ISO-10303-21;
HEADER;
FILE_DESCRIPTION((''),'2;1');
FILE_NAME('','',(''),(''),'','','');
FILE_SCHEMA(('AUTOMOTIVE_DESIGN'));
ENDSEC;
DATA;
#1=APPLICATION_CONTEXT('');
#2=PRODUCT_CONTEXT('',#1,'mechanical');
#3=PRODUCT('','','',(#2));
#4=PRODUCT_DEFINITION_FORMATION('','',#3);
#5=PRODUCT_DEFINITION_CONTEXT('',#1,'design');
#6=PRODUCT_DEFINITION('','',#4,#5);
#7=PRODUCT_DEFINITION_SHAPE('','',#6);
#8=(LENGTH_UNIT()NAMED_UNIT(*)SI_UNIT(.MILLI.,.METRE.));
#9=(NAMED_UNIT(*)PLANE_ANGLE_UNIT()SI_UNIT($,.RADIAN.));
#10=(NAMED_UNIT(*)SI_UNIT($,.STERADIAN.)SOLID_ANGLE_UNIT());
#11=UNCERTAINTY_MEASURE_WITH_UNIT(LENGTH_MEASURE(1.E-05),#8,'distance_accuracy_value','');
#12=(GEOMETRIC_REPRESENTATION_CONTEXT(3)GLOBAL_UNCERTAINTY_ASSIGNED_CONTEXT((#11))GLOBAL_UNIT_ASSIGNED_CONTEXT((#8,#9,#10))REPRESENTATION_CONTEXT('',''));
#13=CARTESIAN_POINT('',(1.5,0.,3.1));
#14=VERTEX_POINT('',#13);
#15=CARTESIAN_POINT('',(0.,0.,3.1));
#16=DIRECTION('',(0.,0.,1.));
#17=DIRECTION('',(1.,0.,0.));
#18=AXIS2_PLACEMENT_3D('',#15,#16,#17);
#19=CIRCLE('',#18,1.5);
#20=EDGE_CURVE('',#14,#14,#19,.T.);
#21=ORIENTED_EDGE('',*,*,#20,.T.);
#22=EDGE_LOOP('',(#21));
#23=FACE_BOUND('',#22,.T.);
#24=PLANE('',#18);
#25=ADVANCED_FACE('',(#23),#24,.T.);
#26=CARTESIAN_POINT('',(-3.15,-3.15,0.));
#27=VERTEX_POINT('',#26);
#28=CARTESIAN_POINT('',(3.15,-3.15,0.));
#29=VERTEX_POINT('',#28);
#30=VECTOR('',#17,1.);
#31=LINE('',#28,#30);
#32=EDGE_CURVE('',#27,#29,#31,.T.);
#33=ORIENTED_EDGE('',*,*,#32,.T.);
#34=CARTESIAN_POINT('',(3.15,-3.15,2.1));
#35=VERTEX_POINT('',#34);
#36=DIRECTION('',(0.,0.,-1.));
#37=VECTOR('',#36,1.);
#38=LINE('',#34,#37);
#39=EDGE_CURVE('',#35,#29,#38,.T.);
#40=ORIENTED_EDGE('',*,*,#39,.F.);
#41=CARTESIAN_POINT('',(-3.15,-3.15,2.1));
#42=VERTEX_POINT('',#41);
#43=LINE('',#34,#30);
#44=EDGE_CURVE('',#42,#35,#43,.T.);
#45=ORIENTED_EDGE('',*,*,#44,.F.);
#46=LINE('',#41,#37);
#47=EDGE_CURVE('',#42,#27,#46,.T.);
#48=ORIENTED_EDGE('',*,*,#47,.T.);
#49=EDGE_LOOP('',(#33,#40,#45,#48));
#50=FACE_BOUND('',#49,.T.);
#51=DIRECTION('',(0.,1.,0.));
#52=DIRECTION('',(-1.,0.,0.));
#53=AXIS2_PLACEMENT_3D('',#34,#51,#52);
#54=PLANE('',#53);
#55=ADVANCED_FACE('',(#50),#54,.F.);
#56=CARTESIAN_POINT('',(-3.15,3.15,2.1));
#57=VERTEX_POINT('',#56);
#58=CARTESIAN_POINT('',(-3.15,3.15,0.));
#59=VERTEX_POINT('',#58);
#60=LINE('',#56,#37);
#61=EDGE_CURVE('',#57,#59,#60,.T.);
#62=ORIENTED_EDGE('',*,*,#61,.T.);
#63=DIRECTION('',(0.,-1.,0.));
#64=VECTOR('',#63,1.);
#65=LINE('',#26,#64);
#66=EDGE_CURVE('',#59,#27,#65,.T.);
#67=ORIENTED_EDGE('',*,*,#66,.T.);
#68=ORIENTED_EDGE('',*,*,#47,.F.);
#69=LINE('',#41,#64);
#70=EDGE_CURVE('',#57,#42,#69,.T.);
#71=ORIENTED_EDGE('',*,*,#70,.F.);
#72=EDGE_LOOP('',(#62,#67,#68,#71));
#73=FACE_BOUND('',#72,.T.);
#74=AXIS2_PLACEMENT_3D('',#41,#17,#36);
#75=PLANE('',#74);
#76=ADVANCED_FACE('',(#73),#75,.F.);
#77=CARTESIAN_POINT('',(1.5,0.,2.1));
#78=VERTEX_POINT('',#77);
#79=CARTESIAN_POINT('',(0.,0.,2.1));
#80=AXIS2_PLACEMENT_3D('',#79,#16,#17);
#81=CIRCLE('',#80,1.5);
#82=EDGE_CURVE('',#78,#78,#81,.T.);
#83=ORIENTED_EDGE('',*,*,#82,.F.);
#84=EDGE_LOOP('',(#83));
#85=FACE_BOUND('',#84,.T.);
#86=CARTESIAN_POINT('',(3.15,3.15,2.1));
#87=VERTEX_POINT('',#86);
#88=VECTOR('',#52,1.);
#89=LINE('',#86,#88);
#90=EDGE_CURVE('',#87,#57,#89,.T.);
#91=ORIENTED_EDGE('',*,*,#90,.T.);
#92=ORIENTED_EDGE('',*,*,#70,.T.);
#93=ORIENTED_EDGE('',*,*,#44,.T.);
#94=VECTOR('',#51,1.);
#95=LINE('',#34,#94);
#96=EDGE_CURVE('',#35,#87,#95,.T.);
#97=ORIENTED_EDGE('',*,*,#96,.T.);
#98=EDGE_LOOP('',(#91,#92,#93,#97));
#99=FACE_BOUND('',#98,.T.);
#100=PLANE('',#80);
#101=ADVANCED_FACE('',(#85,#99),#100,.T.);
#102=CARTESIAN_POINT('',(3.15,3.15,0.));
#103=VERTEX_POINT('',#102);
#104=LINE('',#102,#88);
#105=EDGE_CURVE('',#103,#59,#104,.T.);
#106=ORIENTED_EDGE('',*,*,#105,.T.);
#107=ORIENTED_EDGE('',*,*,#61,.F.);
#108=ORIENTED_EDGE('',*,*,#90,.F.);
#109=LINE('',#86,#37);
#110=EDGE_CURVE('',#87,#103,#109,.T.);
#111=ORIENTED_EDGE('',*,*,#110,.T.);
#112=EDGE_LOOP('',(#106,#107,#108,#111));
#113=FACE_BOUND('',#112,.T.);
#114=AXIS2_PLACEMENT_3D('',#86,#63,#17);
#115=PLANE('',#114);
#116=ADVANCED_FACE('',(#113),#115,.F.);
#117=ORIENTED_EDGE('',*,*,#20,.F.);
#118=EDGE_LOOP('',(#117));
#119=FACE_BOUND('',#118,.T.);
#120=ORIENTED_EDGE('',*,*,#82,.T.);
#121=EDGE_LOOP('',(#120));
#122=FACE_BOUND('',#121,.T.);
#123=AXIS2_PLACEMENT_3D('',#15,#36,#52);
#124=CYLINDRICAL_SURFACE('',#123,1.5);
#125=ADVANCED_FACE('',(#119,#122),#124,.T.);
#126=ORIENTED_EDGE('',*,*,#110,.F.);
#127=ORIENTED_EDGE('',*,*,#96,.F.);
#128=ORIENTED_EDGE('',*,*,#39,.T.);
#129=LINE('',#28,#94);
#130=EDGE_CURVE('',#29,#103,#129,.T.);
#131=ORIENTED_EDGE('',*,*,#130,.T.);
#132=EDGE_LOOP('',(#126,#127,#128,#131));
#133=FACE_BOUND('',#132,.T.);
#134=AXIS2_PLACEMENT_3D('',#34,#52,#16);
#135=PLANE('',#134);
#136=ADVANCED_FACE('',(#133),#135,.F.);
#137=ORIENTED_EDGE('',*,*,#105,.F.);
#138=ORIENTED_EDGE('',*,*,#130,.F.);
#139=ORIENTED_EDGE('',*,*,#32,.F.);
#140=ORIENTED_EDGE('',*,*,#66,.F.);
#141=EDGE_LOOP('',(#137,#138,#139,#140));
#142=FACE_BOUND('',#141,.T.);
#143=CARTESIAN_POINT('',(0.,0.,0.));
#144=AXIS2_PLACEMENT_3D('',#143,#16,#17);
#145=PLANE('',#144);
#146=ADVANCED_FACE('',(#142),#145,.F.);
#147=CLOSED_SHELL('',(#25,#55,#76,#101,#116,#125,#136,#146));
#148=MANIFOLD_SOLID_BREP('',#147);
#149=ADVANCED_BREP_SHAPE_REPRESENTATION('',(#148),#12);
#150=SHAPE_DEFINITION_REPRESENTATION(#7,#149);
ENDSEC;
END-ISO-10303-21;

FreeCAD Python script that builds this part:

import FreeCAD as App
import Part
import Sketcher
from FreeCAD import Vector
Q = App.Units.Quantity


def add_polygon(sketch, points):
    """Adds a closed chain of lines whose ends are joined by coincident constraints."""
    first, n = sketch.GeometryCount, len(points)
    for a, b in zip(points, points[1:] + points[:1]):
        sketch.addGeometry(Part.LineSegment(App.Vector(*a, 0), App.Vector(*b, 0)), False)
    for i in range(n):
        sketch.addConstraint(Sketcher.Constraint("Coincident", first + i, 2, first + (i + 1) % n, 1))

doc = App.newDocument("Part")
body = doc.addObject("PartDesign::Body", "Body")

# Sketch on XY plane
sketch1 = doc.addObject("Sketcher::SketchObject", "Sketch")
body.addObject(sketch1)
sketch1.AttachmentSupport = (doc.XY_Plane, [""])
sketch1.MapMode = "FlatFace"
add_polygon(sketch1, [(-3, 3), (-3, -3), (3, -3), (3, 3)])  # lines 0-3
sketch1.addConstraint([
    Sketcher.Constraint("Vertical", 0),
    Sketcher.Constraint("Horizontal", 1),
    Sketcher.Constraint("Vertical", 2),
    Sketcher.Constraint("Horizontal", 3),
    Sketcher.Constraint("Symmetric", 0, 2, 2, 2, -1, 1),
    Sketcher.Constraint("Equal", 3, 0),
    Sketcher.Constraint("DistanceX", 1, 1, 1, 2, Q("6.3 mm")),
])
pad1 = doc.addObject("PartDesign::Pad", "Pad")
body.addObject(pad1)
pad1.Profile = sketch1
pad1.Length = 2.1

# Sketch on XY plane
sketch2 = doc.addObject("Sketcher::SketchObject", "Sketch001")
body.addObject(sketch2)
sketch2.AttachmentSupport = (doc.XY_Plane, [""])
sketch2.MapMode = "FlatFace"
sketch2.AttachmentOffset = App.Placement(Vector(0, 0, 2.1), App.Rotation())
sketch2.addGeometry(Part.Circle(Vector(0, 0, 0), Vector(0, 0, 1), 1.5), False)
sketch2.addConstraint([
    Sketcher.Constraint("Coincident", 0, 3, -1, 1),
    Sketcher.Constraint("Diameter", 0, Q("3 mm")),
])
pad2 = doc.addObject("PartDesign::Pad", "Pad001")
body.addObject(pad2)
pad2.Profile = sketch2
pad2.Length = 1

doc.recompute()
